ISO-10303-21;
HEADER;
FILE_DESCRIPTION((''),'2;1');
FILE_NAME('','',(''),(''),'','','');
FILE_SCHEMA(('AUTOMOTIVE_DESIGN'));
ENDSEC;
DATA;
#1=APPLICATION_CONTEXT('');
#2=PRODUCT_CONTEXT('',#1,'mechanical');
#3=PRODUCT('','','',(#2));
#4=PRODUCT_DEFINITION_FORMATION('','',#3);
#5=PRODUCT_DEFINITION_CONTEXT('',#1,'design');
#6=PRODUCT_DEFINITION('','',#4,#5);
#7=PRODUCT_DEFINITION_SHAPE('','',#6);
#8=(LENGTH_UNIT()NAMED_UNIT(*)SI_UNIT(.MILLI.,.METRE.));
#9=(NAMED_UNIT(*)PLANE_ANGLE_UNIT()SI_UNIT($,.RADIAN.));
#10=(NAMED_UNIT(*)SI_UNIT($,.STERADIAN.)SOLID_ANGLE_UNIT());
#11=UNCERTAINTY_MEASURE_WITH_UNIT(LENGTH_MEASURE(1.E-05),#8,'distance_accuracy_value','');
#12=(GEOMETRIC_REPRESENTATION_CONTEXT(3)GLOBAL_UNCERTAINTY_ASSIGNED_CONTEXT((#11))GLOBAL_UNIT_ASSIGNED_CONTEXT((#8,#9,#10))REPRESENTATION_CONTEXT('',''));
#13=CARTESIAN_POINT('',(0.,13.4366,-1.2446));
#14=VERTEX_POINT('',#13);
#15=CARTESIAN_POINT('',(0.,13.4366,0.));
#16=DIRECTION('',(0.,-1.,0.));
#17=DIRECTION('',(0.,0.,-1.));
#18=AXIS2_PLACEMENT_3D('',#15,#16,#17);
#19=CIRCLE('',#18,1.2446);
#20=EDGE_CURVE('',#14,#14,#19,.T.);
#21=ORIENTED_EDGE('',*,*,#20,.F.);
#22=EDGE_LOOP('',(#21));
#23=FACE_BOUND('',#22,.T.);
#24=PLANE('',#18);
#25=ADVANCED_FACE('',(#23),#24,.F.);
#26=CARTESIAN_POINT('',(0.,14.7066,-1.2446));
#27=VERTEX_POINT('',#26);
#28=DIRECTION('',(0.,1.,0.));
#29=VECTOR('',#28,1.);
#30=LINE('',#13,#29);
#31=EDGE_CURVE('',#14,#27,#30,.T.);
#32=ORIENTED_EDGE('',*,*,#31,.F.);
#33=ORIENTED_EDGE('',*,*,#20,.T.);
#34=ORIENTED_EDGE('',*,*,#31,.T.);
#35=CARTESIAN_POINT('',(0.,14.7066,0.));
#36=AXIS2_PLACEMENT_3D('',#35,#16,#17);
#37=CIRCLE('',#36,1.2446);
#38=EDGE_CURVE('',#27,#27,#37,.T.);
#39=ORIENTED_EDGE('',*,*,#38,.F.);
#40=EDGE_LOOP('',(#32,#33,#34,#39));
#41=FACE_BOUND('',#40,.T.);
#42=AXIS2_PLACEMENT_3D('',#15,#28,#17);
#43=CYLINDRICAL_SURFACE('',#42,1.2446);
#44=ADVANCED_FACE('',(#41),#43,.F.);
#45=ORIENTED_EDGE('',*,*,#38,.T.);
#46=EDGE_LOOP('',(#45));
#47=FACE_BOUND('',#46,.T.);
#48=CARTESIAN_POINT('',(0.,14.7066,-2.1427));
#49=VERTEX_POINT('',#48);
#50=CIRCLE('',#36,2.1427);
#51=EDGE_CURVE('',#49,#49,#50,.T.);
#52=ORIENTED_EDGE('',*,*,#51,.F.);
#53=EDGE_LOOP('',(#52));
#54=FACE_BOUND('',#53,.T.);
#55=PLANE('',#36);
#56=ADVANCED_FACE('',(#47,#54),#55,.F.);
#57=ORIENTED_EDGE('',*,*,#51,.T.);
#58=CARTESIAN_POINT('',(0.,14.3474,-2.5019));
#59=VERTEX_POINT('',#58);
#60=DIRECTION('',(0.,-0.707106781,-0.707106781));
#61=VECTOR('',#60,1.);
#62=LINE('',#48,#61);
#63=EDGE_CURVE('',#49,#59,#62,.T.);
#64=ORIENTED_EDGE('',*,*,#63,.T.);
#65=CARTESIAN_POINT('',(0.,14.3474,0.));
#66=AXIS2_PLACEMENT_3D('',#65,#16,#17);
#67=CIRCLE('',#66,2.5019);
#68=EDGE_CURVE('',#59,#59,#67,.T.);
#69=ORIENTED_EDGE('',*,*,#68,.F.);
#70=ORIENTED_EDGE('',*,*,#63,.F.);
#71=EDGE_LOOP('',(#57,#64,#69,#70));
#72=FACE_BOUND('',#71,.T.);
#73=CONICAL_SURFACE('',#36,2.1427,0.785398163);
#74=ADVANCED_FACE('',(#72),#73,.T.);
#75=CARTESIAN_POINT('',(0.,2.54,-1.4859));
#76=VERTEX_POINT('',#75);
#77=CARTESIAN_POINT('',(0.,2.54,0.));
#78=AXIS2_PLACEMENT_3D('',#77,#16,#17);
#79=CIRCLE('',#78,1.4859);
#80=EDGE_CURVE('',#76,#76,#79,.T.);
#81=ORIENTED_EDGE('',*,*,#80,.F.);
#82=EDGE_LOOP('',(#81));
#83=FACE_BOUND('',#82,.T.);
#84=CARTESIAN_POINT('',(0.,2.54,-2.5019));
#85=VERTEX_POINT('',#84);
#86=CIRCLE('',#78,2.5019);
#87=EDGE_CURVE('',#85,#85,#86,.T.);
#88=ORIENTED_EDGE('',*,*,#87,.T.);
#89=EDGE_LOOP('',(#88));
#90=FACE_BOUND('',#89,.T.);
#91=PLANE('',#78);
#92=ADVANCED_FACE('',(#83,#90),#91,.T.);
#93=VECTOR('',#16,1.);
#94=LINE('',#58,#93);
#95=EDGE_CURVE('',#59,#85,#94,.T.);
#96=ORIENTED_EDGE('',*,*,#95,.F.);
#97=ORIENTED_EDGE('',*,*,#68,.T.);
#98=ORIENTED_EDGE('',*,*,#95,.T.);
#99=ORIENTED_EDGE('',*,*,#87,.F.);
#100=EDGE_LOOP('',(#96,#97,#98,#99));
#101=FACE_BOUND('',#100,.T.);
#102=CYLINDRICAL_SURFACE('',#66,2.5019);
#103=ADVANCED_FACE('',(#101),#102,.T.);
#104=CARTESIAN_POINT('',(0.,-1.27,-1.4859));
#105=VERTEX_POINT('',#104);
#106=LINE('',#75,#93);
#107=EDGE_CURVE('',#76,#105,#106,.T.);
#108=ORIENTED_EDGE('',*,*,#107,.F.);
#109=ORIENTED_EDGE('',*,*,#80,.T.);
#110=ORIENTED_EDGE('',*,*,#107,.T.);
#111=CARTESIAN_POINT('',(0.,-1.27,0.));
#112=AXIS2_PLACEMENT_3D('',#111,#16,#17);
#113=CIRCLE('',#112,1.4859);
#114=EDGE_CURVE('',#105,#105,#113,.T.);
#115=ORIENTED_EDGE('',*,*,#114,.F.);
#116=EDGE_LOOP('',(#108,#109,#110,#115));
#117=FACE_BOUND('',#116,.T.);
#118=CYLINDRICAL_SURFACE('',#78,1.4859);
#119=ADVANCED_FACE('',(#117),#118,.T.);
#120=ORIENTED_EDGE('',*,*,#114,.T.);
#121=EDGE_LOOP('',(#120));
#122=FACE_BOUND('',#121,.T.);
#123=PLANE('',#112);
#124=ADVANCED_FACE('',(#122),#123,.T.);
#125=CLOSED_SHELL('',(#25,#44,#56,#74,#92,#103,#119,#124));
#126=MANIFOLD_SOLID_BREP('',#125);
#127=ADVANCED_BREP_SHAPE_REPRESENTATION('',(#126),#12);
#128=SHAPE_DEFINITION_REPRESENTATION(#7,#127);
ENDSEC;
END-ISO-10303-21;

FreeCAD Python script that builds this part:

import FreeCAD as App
import Part
import Sketcher

V = App.Vector
Q = App.Units.Quantity

doc = App.newDocument("Part")
body = doc.addObject("PartDesign::Body", "Body")

# Sketch on YZ plane
sketch1 = body.newObject("Sketcher::SketchObject", "Sketch")
sketch1.AttachmentSupport = (doc.getObject("YZ_Plane"), [""])
sketch1.MapMode = "FlatFace"
sketch1.addGeometry(Part.LineSegment(V(13.4, 0, 0), V(-1.3, 0, 0)), False)
sketch1.addGeometry(Part.LineSegment(V(-1.3, 0, 0), V(-1.3, -1.5, 0)), False)
sketch1.addGeometry(Part.LineSegment(V(-1.3, -1.5, 0), V(2.5, -1.5, 0)), False)
sketch1.addGeometry(Part.LineSegment(V(2.5, -1.5, 0), V(2.5, -2.5, 0)), False)
sketch1.addGeometry(Part.LineSegment(V(2.5, -2.5, 0), V(14.3, -2.5, 0)), False)
sketch1.addGeometry(Part.LineSegment(V(14.3, -2.5, 0), V(14.7, -2.1, 0)), False)
sketch1.addGeometry(Part.LineSegment(V(14.7, -2.1, 0), V(14.7, -1.2, 0)), False)
sketch1.addGeometry(Part.LineSegment(V(14.7, -1.2, 0), V(13.4, -1.2, 0)), False)
sketch1.addGeometry(Part.LineSegment(V(13.4, -1.2, 0), V(13.4, 0, 0)), False)
sketch1.addConstraint(Sketcher.Constraint("Coincident", 0, 2, 1, 1))
sketch1.addConstraint(Sketcher.Constraint("Coincident", 1, 2, 2, 1))
sketch1.addConstraint(Sketcher.Constraint("Coincident", 2, 2, 3, 1))
sketch1.addConstraint(Sketcher.Constraint("Coincident", 3, 2, 4, 1))
sketch1.addConstraint(Sketcher.Constraint("Coincident", 4, 2, 5, 1))
sketch1.addConstraint(Sketcher.Constraint("Coincident", 5, 2, 6, 1))
sketch1.addConstraint(Sketcher.Constraint("Coincident", 6, 2, 7, 1))
sketch1.addConstraint(Sketcher.Constraint("Coincident", 7, 2, 8, 1))
sketch1.addConstraint(Sketcher.Constraint("Coincident", 8, 2, 0, 1))
sketch1.addConstraint(Sketcher.Constraint("Horizontal", 0))
sketch1.addConstraint(Sketcher.Constraint("Vertical", 1))
sketch1.addConstraint(Sketcher.Constraint("Horizontal", 2))
sketch1.addConstraint(Sketcher.Constraint("Vertical", 3))
sketch1.addConstraint(Sketcher.Constraint("Horizontal", 4))
sketch1.addConstraint(Sketcher.Constraint("Vertical", 6))
sketch1.addConstraint(Sketcher.Constraint("Horizontal", 7))
sketch1.addConstraint(Sketcher.Constraint("Vertical", 8))
sketch1.addConstraint(Sketcher.Constraint("PointOnObject", 0, 2, -1))
sketch1.addConstraint(Sketcher.Constraint("Angle", 5, Q("45 deg")))
sketch1.addConstraint(Sketcher.Constraint("DistanceX", 2, 1, 2, 2, Q("0.15 in")))
sketch1.addConstraint(Sketcher.Constraint("DistanceX", 7, 2, 7, 1, Q("0.05 in")))
sketch1.addConstraint(Sketcher.Constraint("DistanceY", 3, 2, 3, 1, Q("0.04 in")))
sketch1.addConstraint(Sketcher.Constraint("DistanceX", -1, 1, 2, 2, Q("0.1 in")))
sketch1.addConstraint(Sketcher.Constraint("Distance", 5, Q("0.02 in")))
sketch1.addConstraint(Sketcher.Constraint("DistanceX", 0, 2, 0, 1, Q("0.579 in")))
sketch1.addConstraint(Sketcher.Constraint("DistanceY", 8, 1, 8, 2, Q("0.049 in")))
sketch1.addConstraint(Sketcher.Constraint("DistanceY", 1, 2, 1, 1, Q("0.0585 in")))
revolution = body.newObject("PartDesign::Revolution", "Revolution")
revolution.Profile = sketch1
revolution.ReferenceAxis = (sketch1, ["H_Axis"])
revolution.Angle = 360

doc.recompute()
